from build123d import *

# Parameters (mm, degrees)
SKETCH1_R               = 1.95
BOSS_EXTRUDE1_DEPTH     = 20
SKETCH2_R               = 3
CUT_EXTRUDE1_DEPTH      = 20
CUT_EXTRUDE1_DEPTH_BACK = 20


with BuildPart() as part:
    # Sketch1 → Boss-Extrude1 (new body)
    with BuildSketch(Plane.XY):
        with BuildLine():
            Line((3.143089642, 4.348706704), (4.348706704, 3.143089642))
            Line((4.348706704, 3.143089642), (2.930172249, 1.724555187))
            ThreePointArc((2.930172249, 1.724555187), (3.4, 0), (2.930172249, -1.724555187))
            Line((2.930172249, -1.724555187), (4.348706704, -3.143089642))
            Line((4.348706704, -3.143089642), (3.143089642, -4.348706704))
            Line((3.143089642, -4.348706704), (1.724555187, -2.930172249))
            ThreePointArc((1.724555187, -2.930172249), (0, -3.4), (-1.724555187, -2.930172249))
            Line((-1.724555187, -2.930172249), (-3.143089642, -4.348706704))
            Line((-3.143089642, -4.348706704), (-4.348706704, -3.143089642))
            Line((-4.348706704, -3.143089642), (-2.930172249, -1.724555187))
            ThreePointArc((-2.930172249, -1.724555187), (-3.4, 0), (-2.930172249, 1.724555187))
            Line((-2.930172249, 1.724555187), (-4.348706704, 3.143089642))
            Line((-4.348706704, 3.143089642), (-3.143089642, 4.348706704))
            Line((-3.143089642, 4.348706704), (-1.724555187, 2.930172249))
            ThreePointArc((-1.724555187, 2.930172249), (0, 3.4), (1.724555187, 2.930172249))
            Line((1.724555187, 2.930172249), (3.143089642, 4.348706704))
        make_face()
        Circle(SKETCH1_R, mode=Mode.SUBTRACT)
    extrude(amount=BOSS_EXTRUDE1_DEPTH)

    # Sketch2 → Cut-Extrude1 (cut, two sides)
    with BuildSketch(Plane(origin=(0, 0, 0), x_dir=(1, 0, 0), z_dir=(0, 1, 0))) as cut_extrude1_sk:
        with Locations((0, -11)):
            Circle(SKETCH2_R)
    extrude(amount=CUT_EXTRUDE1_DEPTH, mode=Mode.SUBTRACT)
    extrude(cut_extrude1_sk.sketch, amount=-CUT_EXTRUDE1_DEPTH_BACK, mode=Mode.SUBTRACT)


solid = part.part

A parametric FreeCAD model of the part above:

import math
import FreeCAD as App
import Part
import Sketcher

V = App.Vector

doc = App.newDocument("Part")
body = doc.addObject("PartDesign::Body", "Body")

# Sketch on XY plane
sketch1 = body.newObject("Sketcher::SketchObject", "Sketch")
sketch1.AttachmentSupport = (doc.getObject("XY_Plane"), [""])
sketch1.MapMode = "FlatFace"
sketch1.addGeometry([
    Part.LineSegment(V(4.348707, 3.14309, 0), V(3.14309, 4.348707, 0)),  # 0
    Part.LineSegment(V(3.14309, 4.348707, 0), V(1.724555, 2.930172, 0)),  # 1
    Part.ArcOfCircle(Part.Circle(V(0, 0, 0), V(0, 0, 1), 3.4), math.radians(59.521027), math.radians(120.478973)),  # 2
    Part.LineSegment(V(-1.724555, 2.930172, 0), V(-3.14309, 4.348707, 0)),  # 3
    Part.LineSegment(V(-3.14309, 4.348707, 0), V(-4.348707, 3.14309, 0)),  # 4
    Part.LineSegment(V(-4.348707, 3.14309, 0), V(-2.930172, 1.724555, 0)),  # 5
    Part.ArcOfCircle(Part.Circle(V(0, 0, 0), V(0, 0, 1), 3.4), math.radians(149.521027), math.radians(210.478973)),  # 6
    Part.LineSegment(V(-2.930172, -1.724555, 0), V(-4.348707, -3.14309, 0)),  # 7
    Part.LineSegment(V(-4.348707, -3.14309, 0), V(-3.14309, -4.348707, 0)),  # 8
    Part.LineSegment(V(-3.14309, -4.348707, 0), V(-1.724555, -2.930172, 0)),  # 9
    Part.ArcOfCircle(Part.Circle(V(0, 0, 0), V(0, 0, 1), 3.4), math.radians(-120.478973), math.radians(-59.521027)),  # 10
    Part.LineSegment(V(1.724555, -2.930172, 0), V(3.14309, -4.348707, 0)),  # 11
    Part.LineSegment(V(3.14309, -4.348707, 0), V(4.348707, -3.14309, 0)),  # 12
    Part.LineSegment(V(4.348707, -3.14309, 0), V(2.930172, -1.724555, 0)),  # 13
    Part.ArcOfCircle(Part.Circle(V(0, 0, 0), V(0, 0, 1), 3.4), math.radians(-30.478973), math.radians(30.478973)),  # 14
    Part.LineSegment(V(2.930172, 1.724555, 0), V(4.348707, 3.14309, 0)),  # 15
    Part.Circle(V(0, 0, 0), V(0, 0, 1), 1.95),  # 16
], False)
sketch1.addConstraint([
    Sketcher.Constraint("Coincident", 0, 2, 1, 1),
    Sketcher.Constraint("Coincident", 1, 2, 2, 1),
    Sketcher.Constraint("Coincident", 2, 2, 3, 1),
    Sketcher.Constraint("Coincident", 3, 2, 4, 1),
    Sketcher.Constraint("Coincident", 4, 2, 5, 1),
    Sketcher.Constraint("Coincident", 5, 2, 6, 1),
    Sketcher.Constraint("Coincident", 6, 2, 7, 1),
    Sketcher.Constraint("Coincident", 7, 2, 8, 1),
    Sketcher.Constraint("Coincident", 8, 2, 9, 1),
    Sketcher.Constraint("Coincident", 9, 2, 10, 1),
    Sketcher.Constraint("Coincident", 10, 2, 11, 1),
    Sketcher.Constraint("Coincident", 11, 2, 12, 1),
    Sketcher.Constraint("Coincident", 12, 2, 13, 1),
    Sketcher.Constraint("Coincident", 13, 2, 14, 1),
    Sketcher.Constraint("Coincident", 14, 2, 15, 1),
    Sketcher.Constraint("Coincident", 15, 2, 0, 1),
    Sketcher.Constraint("Coincident", 2, 3, -1, 1),
    Sketcher.Constraint("Coincident", 6, 3, -1, 1),
    Sketcher.Constraint("Coincident", 10, 3, -1, 1),
    Sketcher.Constraint("Coincident", 14, 3, -1, 1),
    Sketcher.Constraint("Coincident", 16, 3, -1, 1),
    Sketcher.Constraint("Equal", 2, 6),
    Sketcher.Constraint("Equal", 6, 10),
    Sketcher.Constraint("Equal", 10, 14),
    Sketcher.Constraint("Symmetric", 0, 2, 8, 2, -1, 1),
    Sketcher.Constraint("Symmetric", 3, 2, 11, 2, -1, 1),
    Sketcher.Constraint("Symmetric", 4, 2, 12, 2, -1, 1),
    Sketcher.Constraint("Symmetric", 7, 2, 15, 2, -1, 1),
    Sketcher.Constraint("Symmetric", 0, 2, 3, 2, -2),
    Sketcher.Constraint("Symmetric", 7, 2, 12, 2, -2),
    Sketcher.Constraint("Perpendicular", 0, 1),
    Sketcher.Constraint("Perpendicular", 1, 3),
    Sketcher.Constraint("Perpendicular", 3, 4),
    Sketcher.Constraint("Perpendicular", 4, 5),
    Sketcher.Constraint("Perpendicular", 5, 7),
    Sketcher.Constraint("Perpendicular", 8, 9),
    Sketcher.Constraint("Perpendicular", 9, 11),
    Sketcher.Constraint("Perpendicular", 12, 13),
    Sketcher.Constraint("Perpendicular", 13, 15),
    Sketcher.Constraint("Equal", 3, 5),
    Sketcher.Constraint("Diameter", 16, 3.9),
    Sketcher.Constraint("Radius", 2, 3.4),
    Sketcher.Constraint("Distance", 0, 1.705),
    Sketcher.Constraint("Distance", 1, 2.006111),
])
pad1 = body.newObject("PartDesign::Pad", "Pad")
pad1.Profile = sketch1
pad1.Length = 20

# Sketch on XZ plane
sketch2 = body.newObject("Sketcher::SketchObject", "Sketch001")
sketch2.AttachmentSupport = (doc.getObject("XZ_Plane"), [""])
sketch2.MapMode = "FlatFace"
sketch2.addGeometry(Part.Circle(V(0, 11, 0), V(0, 0, 1), 3), False)
sketch2.addConstraint([
    Sketcher.Constraint("PointOnObject", 0, 3, -2),
    Sketcher.Constraint("Diameter", 0, 6.0),
    Sketcher.Constraint("DistanceY", -1, 1, 0, 3, 11.0),
])
pocket1 = body.newObject("PartDesign::Pocket", "Pocket")
pocket1.Profile = sketch2
pocket1.Type = "ThroughAll"
pocket1.Midplane = True

doc.recompute()
